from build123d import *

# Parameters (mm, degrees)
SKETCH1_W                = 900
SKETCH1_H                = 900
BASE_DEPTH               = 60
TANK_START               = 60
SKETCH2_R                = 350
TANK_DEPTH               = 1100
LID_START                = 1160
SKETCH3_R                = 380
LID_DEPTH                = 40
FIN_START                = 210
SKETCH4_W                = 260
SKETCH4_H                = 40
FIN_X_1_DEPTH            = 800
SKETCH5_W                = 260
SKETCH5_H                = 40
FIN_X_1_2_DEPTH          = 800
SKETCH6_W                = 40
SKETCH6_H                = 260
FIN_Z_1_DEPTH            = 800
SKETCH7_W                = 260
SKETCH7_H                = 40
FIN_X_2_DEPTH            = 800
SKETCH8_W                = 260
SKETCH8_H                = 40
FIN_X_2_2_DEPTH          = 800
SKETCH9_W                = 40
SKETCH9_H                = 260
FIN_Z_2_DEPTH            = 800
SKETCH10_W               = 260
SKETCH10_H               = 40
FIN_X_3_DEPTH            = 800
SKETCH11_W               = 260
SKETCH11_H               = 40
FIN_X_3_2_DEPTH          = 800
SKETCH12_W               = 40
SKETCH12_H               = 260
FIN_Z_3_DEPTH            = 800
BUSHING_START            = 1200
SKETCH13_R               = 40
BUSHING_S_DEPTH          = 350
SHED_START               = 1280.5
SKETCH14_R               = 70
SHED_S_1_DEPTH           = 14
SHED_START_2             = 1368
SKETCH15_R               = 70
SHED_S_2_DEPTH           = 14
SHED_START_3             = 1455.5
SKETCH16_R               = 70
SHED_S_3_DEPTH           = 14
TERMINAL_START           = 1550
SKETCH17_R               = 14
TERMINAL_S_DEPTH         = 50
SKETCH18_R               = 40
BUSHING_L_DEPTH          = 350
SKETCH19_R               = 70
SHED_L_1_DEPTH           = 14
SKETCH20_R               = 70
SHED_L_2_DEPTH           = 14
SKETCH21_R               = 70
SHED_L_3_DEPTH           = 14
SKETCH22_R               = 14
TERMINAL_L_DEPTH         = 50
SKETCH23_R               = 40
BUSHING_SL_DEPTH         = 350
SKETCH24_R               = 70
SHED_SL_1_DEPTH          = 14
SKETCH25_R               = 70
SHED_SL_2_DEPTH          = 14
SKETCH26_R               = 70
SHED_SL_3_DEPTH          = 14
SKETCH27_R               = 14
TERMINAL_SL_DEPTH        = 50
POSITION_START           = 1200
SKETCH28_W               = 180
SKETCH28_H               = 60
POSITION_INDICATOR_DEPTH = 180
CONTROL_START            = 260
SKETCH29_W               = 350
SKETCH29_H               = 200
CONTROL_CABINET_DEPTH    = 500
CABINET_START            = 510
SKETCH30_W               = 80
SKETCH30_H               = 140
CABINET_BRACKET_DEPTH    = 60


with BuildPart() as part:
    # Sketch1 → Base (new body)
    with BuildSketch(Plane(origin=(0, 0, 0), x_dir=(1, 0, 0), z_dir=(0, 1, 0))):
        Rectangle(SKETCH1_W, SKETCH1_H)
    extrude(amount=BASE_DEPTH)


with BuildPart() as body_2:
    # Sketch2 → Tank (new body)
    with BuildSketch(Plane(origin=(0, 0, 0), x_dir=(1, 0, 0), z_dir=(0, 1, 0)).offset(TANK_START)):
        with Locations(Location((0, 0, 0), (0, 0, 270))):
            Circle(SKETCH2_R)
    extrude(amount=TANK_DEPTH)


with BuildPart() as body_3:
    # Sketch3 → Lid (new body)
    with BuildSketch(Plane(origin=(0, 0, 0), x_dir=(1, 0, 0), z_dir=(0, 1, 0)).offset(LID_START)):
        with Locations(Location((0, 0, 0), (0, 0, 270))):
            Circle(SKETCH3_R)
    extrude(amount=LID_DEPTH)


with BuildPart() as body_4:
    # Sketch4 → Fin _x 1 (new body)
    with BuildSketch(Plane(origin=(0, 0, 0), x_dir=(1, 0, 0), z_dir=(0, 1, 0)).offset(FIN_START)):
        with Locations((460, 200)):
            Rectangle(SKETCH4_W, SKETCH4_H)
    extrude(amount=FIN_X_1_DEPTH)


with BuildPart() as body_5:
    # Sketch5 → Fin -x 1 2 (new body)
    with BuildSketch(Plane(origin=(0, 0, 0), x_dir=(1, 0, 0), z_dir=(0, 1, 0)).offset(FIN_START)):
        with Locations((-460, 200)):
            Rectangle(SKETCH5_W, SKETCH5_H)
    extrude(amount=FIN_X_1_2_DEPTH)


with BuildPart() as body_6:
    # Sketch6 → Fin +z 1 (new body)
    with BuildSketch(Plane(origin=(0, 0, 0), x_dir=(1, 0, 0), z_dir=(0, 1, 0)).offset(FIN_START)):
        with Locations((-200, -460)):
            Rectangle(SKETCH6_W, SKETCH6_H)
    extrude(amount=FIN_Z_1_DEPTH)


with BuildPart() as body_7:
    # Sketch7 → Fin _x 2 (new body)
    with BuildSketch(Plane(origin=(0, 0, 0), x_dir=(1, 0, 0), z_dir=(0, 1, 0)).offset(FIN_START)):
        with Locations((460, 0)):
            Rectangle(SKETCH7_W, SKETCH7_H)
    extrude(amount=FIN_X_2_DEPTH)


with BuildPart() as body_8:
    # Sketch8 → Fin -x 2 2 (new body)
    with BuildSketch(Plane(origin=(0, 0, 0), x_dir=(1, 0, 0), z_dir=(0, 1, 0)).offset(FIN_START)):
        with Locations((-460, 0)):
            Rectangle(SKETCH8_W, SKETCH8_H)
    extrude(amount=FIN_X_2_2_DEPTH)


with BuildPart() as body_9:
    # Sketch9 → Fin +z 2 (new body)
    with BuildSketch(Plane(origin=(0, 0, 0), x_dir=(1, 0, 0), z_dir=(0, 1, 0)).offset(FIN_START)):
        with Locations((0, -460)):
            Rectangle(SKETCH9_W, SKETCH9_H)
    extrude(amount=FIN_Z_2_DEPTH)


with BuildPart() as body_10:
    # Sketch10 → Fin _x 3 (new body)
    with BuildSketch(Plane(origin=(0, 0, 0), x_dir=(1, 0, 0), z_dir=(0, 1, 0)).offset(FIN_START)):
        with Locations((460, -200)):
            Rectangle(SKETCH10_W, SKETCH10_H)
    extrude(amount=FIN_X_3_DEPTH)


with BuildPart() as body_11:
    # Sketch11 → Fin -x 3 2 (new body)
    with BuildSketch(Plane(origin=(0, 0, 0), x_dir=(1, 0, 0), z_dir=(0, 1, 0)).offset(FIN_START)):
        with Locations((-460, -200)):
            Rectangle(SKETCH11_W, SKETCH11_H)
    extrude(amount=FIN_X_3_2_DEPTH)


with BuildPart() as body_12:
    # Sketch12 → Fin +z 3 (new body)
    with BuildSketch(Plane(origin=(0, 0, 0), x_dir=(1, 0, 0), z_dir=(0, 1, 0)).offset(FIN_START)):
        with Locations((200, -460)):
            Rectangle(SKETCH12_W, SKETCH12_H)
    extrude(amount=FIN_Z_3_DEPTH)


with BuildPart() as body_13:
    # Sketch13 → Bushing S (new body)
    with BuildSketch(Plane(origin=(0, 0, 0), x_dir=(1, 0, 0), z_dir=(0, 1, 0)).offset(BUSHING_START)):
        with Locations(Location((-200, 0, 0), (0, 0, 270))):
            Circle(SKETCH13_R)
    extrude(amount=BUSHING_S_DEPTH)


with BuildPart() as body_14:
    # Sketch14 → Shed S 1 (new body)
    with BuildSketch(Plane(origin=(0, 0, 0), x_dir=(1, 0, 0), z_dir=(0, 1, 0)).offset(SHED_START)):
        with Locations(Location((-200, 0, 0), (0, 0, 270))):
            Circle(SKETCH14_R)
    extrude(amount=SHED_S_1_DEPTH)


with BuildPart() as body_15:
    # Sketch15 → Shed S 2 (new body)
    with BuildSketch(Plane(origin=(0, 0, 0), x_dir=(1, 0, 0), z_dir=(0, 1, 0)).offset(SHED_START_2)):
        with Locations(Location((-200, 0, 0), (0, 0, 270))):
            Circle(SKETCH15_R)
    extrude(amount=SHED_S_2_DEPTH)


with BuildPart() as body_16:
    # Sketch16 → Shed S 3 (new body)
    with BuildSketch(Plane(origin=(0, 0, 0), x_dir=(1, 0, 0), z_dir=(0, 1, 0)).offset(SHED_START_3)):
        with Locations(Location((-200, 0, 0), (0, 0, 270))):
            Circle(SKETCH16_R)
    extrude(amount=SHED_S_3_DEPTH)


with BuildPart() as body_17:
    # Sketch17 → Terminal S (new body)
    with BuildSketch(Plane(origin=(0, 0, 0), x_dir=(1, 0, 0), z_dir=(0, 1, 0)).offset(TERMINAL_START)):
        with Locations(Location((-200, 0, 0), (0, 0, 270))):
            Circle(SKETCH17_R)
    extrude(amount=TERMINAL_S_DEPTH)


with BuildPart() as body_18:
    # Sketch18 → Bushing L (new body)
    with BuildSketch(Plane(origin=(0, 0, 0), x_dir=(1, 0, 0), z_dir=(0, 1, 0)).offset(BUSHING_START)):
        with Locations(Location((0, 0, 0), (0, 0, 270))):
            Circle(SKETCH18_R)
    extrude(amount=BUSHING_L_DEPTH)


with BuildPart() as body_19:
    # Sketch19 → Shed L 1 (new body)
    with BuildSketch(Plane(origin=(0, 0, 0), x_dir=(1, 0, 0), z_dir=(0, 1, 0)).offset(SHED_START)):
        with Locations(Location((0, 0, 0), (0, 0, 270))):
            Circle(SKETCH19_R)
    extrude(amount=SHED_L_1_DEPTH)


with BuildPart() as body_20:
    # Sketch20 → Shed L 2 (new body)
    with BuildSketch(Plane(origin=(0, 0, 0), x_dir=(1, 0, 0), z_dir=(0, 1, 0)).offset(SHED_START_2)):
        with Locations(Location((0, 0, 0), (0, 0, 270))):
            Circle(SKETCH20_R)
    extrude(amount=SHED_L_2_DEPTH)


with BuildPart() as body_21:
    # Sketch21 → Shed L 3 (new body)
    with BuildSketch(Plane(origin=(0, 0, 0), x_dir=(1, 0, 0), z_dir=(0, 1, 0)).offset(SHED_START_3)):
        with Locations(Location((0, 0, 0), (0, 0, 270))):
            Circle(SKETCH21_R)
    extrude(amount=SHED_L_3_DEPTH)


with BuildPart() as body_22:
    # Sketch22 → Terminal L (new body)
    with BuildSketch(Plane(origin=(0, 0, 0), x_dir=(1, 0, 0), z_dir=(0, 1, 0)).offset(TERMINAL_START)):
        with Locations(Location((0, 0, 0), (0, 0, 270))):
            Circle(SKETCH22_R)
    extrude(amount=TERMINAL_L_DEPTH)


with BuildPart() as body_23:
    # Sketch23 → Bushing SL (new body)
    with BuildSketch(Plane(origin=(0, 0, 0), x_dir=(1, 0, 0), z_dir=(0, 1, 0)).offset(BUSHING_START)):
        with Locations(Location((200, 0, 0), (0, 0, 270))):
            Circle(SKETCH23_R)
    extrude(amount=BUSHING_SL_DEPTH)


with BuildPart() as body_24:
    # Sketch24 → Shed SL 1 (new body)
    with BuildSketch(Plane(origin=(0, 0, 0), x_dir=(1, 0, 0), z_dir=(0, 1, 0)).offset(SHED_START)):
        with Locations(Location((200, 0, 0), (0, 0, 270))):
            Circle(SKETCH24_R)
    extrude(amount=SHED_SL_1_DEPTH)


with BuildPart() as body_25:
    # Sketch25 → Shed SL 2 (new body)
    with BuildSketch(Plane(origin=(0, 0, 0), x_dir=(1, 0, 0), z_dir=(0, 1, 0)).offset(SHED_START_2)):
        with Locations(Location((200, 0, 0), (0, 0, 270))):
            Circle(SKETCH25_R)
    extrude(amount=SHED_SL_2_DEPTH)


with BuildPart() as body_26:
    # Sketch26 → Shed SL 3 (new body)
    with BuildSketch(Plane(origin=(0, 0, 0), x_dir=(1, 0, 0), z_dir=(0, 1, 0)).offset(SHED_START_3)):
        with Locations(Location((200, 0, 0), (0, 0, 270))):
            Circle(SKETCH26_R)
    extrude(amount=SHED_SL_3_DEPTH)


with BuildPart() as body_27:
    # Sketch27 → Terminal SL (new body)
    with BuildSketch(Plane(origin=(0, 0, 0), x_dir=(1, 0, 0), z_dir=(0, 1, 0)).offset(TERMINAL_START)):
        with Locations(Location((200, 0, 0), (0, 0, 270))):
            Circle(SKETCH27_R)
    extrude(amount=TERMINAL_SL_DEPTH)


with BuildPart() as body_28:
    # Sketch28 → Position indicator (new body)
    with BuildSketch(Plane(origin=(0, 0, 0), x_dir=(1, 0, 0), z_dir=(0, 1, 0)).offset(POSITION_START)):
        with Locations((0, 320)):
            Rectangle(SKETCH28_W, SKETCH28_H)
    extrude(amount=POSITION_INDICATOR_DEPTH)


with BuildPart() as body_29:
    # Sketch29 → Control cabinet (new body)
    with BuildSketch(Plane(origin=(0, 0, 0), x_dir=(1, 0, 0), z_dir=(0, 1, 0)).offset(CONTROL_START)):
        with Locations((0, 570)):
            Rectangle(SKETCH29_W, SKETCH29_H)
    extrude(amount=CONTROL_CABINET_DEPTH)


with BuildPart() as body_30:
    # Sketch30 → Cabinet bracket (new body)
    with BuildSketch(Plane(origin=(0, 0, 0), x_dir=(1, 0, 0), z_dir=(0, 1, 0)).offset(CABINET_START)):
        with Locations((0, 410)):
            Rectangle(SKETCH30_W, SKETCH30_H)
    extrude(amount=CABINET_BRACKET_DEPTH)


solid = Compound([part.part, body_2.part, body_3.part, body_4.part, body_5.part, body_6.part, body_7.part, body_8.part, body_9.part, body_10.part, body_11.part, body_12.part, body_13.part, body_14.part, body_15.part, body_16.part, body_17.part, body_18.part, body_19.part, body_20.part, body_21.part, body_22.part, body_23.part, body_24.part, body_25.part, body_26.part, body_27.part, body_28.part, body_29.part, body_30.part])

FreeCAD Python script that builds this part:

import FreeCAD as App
import Part
import Sketcher

V = App.Vector


def add_polygon(sketch, points):
    """Adds a closed chain of lines whose ends are joined by coincident constraints."""
    first, n = sketch.GeometryCount, len(points)
    for a, b in zip(points, points[1:] + points[:1]):
        sketch.addGeometry(Part.LineSegment(App.Vector(*a, 0), App.Vector(*b, 0)), False)
    for i in range(n):
        sketch.addConstraint(Sketcher.Constraint("Coincident", first + i, 2, first + (i + 1) % n, 1))

doc = App.newDocument("Part")
params = doc.addObject("Spreadsheet::Sheet", "Params")
for row, (alias, value) in enumerate([
    ("sketch1_width", "900 mm"),
    ("pad1_length", "60 mm"),
    ("sketch2_diameter", "700 mm"),
    ("pad2_length", "1100 mm"),
    ("sketch3_diameter", "760 mm"),
    ("pad3_length", "40 mm"),
    ("sketch4_width", "260 mm"),
    ("sketch4_height", "40 mm"),
    ("pad4_length", "800 mm"),
    ("sketch5_width", "260 mm"),
    ("sketch5_height", "40 mm"),
    ("pad5_length", "800 mm"),
    ("sketch6_width", "40 mm"),
    ("sketch6_height", "260 mm"),
    ("pad6_length", "800 mm"),
    ("sketch7_width", "260 mm"),
    ("sketch7_height", "40 mm"),
    ("pad7_length", "800 mm"),
    ("sketch8_width", "260 mm"),
    ("sketch8_height", "40 mm"),
    ("pad8_length", "800 mm"),
    ("sketch9_width", "40 mm"),
    ("sketch9_height", "260 mm"),
    ("pad9_length", "800 mm"),
    ("sketch10_width", "260 mm"),
    ("sketch10_height", "40 mm"),
    ("pad10_length", "800 mm"),
    ("sketch11_width", "260 mm"),
    ("sketch11_height", "40 mm"),
    ("pad11_length", "800 mm"),
    ("sketch12_width", "40 mm"),
    ("sketch12_height", "260 mm"),
    ("pad12_length", "800 mm"),
    ("sketch13_diameter", "80 mm"),
    ("pad13_length", "350 mm"),
    ("sketch14_diameter", "140 mm"),
    ("pad14_length", "14 mm"),
    ("sketch15_diameter", "140 mm"),
    ("pad15_length", "14 mm"),
    ("sketch16_diameter", "140 mm"),
    ("pad16_length", "14 mm"),
    ("sketch17_diameter", "28 mm"),
    ("pad17_length", "50 mm"),
    ("sketch18_diameter", "80 mm"),
    ("pad18_length", "350 mm"),
    ("sketch19_diameter", "140 mm"),
    ("pad19_length", "14 mm"),
    ("sketch20_diameter", "140 mm"),
    ("pad20_length", "14 mm"),
    ("sketch21_diameter", "140 mm"),
    ("pad21_length", "14 mm"),
    ("sketch22_diameter", "28 mm"),
    ("pad22_length", "50 mm"),
    ("sketch23_diameter", "80 mm"),
    ("pad23_length", "350 mm"),
    ("sketch24_diameter", "140 mm"),
    ("pad24_length", "14 mm"),
    ("sketch25_diameter", "140 mm"),
    ("pad25_length", "14 mm"),
    ("sketch26_diameter", "140 mm"),
    ("pad26_length", "14 mm"),
    ("sketch27_diameter", "28 mm"),
    ("pad27_length", "50 mm"),
    ("sketch28_width", "180 mm"),
    ("sketch28_height", "60 mm"),
    ("pad28_length", "180 mm"),
    ("sketch29_width", "350 mm"),
    ("sketch29_height", "200 mm"),
    ("pad29_length", "500 mm"),
    ("sketch30_width", "80 mm"),
    ("sketch30_height", "140 mm"),
    ("pad30_length", "60 mm"),
], start=1):
    params.set(f"A{row}", alias)
    params.set(f"B{row}", "=" + value)
    params.setAlias(f"B{row}", alias)

body = doc.addObject("PartDesign::Body", "Body")

# Sketch on XZ plane
sketch1 = doc.addObject("Sketcher::SketchObject", "Sketch")
body.addObject(sketch1)
sketch1.AttachmentSupport = (doc.XZ_Plane, [""])
sketch1.MapMode = "FlatFace"
add_polygon(sketch1, [(-450, -450), (-450, 450), (450, 450), (450, -450)])  # lines 0-3
sketch1.addConstraint([
    Sketcher.Constraint("Vertical", 0),
    Sketcher.Constraint("Horizontal", 1),
    Sketcher.Constraint("Vertical", 2),
    Sketcher.Constraint("Horizontal", 3),
    Sketcher.Constraint("Symmetric", 0, 2, 2, 2, -1, 1),
    Sketcher.Constraint("Equal", 3, 0),
    Sketcher.Constraint("DistanceX", 1, 1, 1, 2, 900.0),
])
sketch1.setExpression("Constraints[10]", "Params.sketch1_width")
pad1 = doc.addObject("PartDesign::Pad", "Pad")
body.addObject(pad1)
pad1.Profile = sketch1
pad1.setExpression("Length", "Params.pad1_length")
pad1.Reversed = True
body2 = doc.addObject("PartDesign::Body", "Body001")

# Sketch on XZ plane
sketch2 = doc.addObject("Sketcher::SketchObject", "Sketch001")
body2.addObject(sketch2)
sketch2.AttachmentSupport = (doc.getObject("XZ_Plane001"), [""])
sketch2.MapMode = "FlatFace"
sketch2.AttachmentOffset = App.Placement(V(0, 0, -60), App.Rotation())
sketch2.addGeometry(Part.Circle(V(0, 0, 0), V(0, 0, 1), 350), False)
sketch2.addConstraint([
    Sketcher.Constraint("Coincident", 0, 3, -1, 1),
    Sketcher.Constraint("Diameter", 0, 700.0),
])
sketch2.setExpression("Constraints[1]", "Params.sketch2_diameter")
pad2 = doc.addObject("PartDesign::Pad", "Pad001")
body2.addObject(pad2)
pad2.Profile = sketch2
pad2.setExpression("Length", "Params.pad2_length")
pad2.Reversed = True
body3 = doc.addObject("PartDesign::Body", "Body002")

# Sketch on XZ plane
sketch3 = doc.addObject("Sketcher::SketchObject", "Sketch002")
body3.addObject(sketch3)
sketch3.AttachmentSupport = (doc.getObject("XZ_Plane002"), [""])
sketch3.MapMode = "FlatFace"
sketch3.AttachmentOffset = App.Placement(V(0, 0, -1160), App.Rotation())
sketch3.addGeometry(Part.Circle(V(0, 0, 0), V(0, 0, 1), 380), False)
sketch3.addConstraint([
    Sketcher.Constraint("Coincident", 0, 3, -1, 1),
    Sketcher.Constraint("Diameter", 0, 760.0),
])
sketch3.setExpression("Constraints[1]", "Params.sketch3_diameter")
pad3 = doc.addObject("PartDesign::Pad", "Pad002")
body3.addObject(pad3)
pad3.Profile = sketch3
pad3.setExpression("Length", "Params.pad3_length")
pad3.Reversed = True
body4 = doc.addObject("PartDesign::Body", "Body003")

# Sketch on XZ plane
sketch4 = doc.addObject("Sketcher::SketchObject", "Sketch003")
body4.addObject(sketch4)
sketch4.AttachmentSupport = (doc.getObject("XZ_Plane003"), [""])
sketch4.MapMode = "FlatFace"
sketch4.AttachmentOffset = App.Placement(V(0, 0, -210), App.Rotation())
add_polygon(sketch4, [(330, -220), (330, -180), (590, -180), (590, -220)])  # lines 0-3
sketch4.addConstraint([
    Sketcher.Constraint("Vertical", 0),
    Sketcher.Constraint("Horizontal", 1),
    Sketcher.Constraint("Vertical", 2),
    Sketcher.Constraint("Horizontal", 3),
    Sketcher.Constraint("DistanceX", 1, 1, 1, 2, 260.0),
    Sketcher.Constraint("DistanceY", 0, 1, 0, 2, 40.0),
    Sketcher.Constraint("DistanceX", -1, 1, 0, 2, 330.0),
    Sketcher.Constraint("DistanceY", 0, 2, -1, 1, 180.0),
])
sketch4.setExpression("Constraints[8]", "Params.sketch4_width")
sketch4.setExpression("Constraints[9]", "Params.sketch4_height")
pad4 = doc.addObject("PartDesign::Pad", "Pad003")
body4.addObject(pad4)
pad4.Profile = sketch4
pad4.setExpression("Length", "Params.pad4_length")
pad4.Reversed = True
body5 = doc.addObject("PartDesign::Body", "Body004")

# Sketch on XZ plane
sketch5 = doc.addObject("Sketcher::SketchObject", "Sketch004")
body5.addObject(sketch5)
sketch5.AttachmentSupport = (doc.getObject("XZ_Plane004"), [""])
sketch5.MapMode = "FlatFace"
sketch5.AttachmentOffset = App.Placement(V(0, 0, -210), App.Rotation())
add_polygon(sketch5, [(-590, -220), (-590, -180), (-330, -180), (-330, -220)])  # lines 0-3
sketch5.addConstraint([
    Sketcher.Constraint("Vertical", 0),
    Sketcher.Constraint("Horizontal", 1),
    Sketcher.Constraint("Vertical", 2),
    Sketcher.Constraint("Horizontal", 3),
    Sketcher.Constraint("DistanceX", 1, 1, 1, 2, 260.0),
    Sketcher.Constraint("DistanceY", 0, 1, 0, 2, 40.0),
    Sketcher.Constraint("DistanceX", 0, 2, -1, 1, 590.0),
    Sketcher.Constraint("DistanceY", 0, 2, -1, 1, 180.0),
])
sketch5.setExpression("Constraints[8]", "Params.sketch5_width")
sketch5.setExpression("Constraints[9]", "Params.sketch5_height")
pad5 = doc.addObject("PartDesign::Pad", "Pad004")
body5.addObject(pad5)
pad5.Profile = sketch5
pad5.setExpression("Length", "Params.pad5_length")
pad5.Reversed = True
body6 = doc.addObject("PartDesign::Body", "Body005")

# Sketch on XZ plane
sketch6 = doc.addObject("Sketcher::SketchObject", "Sketch005")
body6.addObject(sketch6)
sketch6.AttachmentSupport = (doc.getObject("XZ_Plane005"), [""])
sketch6.MapMode = "FlatFace"
sketch6.AttachmentOffset = App.Placement(V(0, 0, -210), App.Rotation())
add_polygon(sketch6, [(-220, 330), (-220, 590), (-180, 590), (-180, 330)])  # lines 0-3
sketch6.addConstraint([
    Sketcher.Constraint("Vertical", 0),
    Sketcher.Constraint("Horizontal", 1),
    Sketcher.Constraint("Vertical", 2),
    Sketcher.Constraint("Horizontal", 3),
    Sketcher.Constraint("DistanceX", 1, 1, 1, 2, 40.0),
    Sketcher.Constraint("DistanceY", 0, 1, 0, 2, 260.0),
    Sketcher.Constraint("DistanceX", 0, 2, -1, 1, 220.0),
    Sketcher.Constraint("DistanceY", -1, 1, 0, 2, 590.0),
])
sketch6.setExpression("Constraints[8]", "Params.sketch6_width")
sketch6.setExpression("Constraints[9]", "Params.sketch6_height")
pad6 = doc.addObject("PartDesign::Pad", "Pad005")
body6.addObject(pad6)
pad6.Profile = sketch6
pad6.setExpression("Length", "Params.pad6_length")
pad6.Reversed = True
body7 = doc.addObject("PartDesign::Body", "Body006")

# Sketch on XZ plane
sketch7 = doc.addObject("Sketcher::SketchObject", "Sketch006")
body7.addObject(sketch7)
sketch7.AttachmentSupport = (doc.getObject("XZ_Plane006"), [""])
sketch7.MapMode = "FlatFace"
sketch7.AttachmentOffset = App.Placement(V(0, 0, -210), App.Rotation())
add_polygon(sketch7, [(330, -20), (330, 20), (590, 20), (590, -20)])  # lines 0-3
sketch7.addConstraint([
    Sketcher.Constraint("Vertical", 0),
    Sketcher.Constraint("Horizontal", 1),
    Sketcher.Constraint("Vertical", 2),
    Sketcher.Constraint("Horizontal", 3),
    Sketcher.Constraint("DistanceX", 1, 1, 1, 2, 260.0),
    Sketcher.Constraint("DistanceY", 0, 1, 0, 2, 40.0),
    Sketcher.Constraint("DistanceX", -1, 1, 0, 2, 330.0),
    Sketcher.Constraint("DistanceY", -1, 1, 0, 2, 20.0),
])
sketch7.setExpression("Constraints[8]", "Params.sketch7_width")
sketch7.setExpression("Constraints[9]", "Params.sketch7_height")
pad7 = doc.addObject("PartDesign::Pad", "Pad006")
body7.addObject(pad7)
pad7.Profile = sketch7
pad7.setExpression("Length", "Params.pad7_length")
pad7.Reversed = True
body8 = doc.addObject("PartDesign::Body", "Body007")

# Sketch on XZ plane
sketch8 = doc.addObject("Sketcher::SketchObject", "Sketch007")
body8.addObject(sketch8)
sketch8.AttachmentSupport = (doc.getObject("XZ_Plane007"), [""])
sketch8.MapMode = "FlatFace"
sketch8.AttachmentOffset = App.Placement(V(0, 0, -210), App.Rotation())
add_polygon(sketch8, [(-590, -20), (-590, 20), (-330, 20), (-330, -20)])  # lines 0-3
sketch8.addConstraint([
    Sketcher.Constraint("Vertical", 0),
    Sketcher.Constraint("Horizontal", 1),
    Sketcher.Constraint("Vertical", 2),
    Sketcher.Constraint("Horizontal", 3),
    Sketcher.Constraint("DistanceX", 1, 1, 1, 2, 260.0),
    Sketcher.Constraint("DistanceY", 0, 1, 0, 2, 40.0),
    Sketcher.Constraint("DistanceX", 0, 2, -1, 1, 590.0),
    Sketcher.Constraint("DistanceY", -1, 1, 0, 2, 20.0),
])
sketch8.setExpression("Constraints[8]", "Params.sketch8_width")
sketch8.setExpression("Constraints[9]", "Params.sketch8_height")
pad8 = doc.addObject("PartDesign::Pad", "Pad007")
body8.addObject(pad8)
pad8.Profile = sketch8
pad8.setExpression("Length", "Params.pad8_length")
pad8.Reversed = True
body9 = doc.addObject("PartDesign::Body", "Body008")

# Sketch on XZ plane
sketch9 = doc.addObject("Sketcher::SketchObject", "Sketch008")
body9.addObject(sketch9)
sketch9.AttachmentSupport = (doc.getObject("XZ_Plane008"), [""])
sketch9.MapMode = "FlatFace"
sketch9.AttachmentOffset = App.Placement(V(0, 0, -210), App.Rotation())
add_polygon(sketch9, [(-20, 330), (-20, 590), (20, 590), (20, 330)])  # lines 0-3
sketch9.addConstraint([
    Sketcher.Constraint("Vertical", 0),
    Sketcher.Constraint("Horizontal", 1),
    Sketcher.Constraint("Vertical", 2),
    Sketcher.Constraint("Horizontal", 3),
    Sketcher.Constraint("DistanceX", 1, 1, 1, 2, 40.0),
    Sketcher.Constraint("DistanceY", 0, 1, 0, 2, 260.0),
    Sketcher.Constraint("DistanceX", 0, 2, -1, 1, 20.0),
    Sketcher.Constraint("DistanceY", -1, 1, 0, 2, 590.0),
])
sketch9.setExpression("Constraints[8]", "Params.sketch9_width")
sketch9.setExpression("Constraints[9]", "Params.sketch9_height")
pad9 = doc.addObject("PartDesign::Pad", "Pad008")
body9.addObject(pad9)
pad9.Profile = sketch9
pad9.setExpression("Length", "Params.pad9_length")
pad9.Reversed = True
body10 = doc.addObject("PartDesign::Body", "Body009")

# Sketch on XZ plane
sketch10 = doc.addObject("Sketcher::SketchObject", "Sketch009")
body10.addObject(sketch10)
sketch10.AttachmentSupport = (doc.getObject("XZ_Plane009"), [""])
sketch10.MapMode = "FlatFace"
sketch10.AttachmentOffset = App.Placement(V(0, 0, -210), App.Rotation())
add_polygon(sketch10, [(330, 180), (330, 220), (590, 220), (590, 180)])  # lines 0-3
sketch10.addConstraint([
    Sketcher.Constraint("Vertical", 0),
    Sketcher.Constraint("Horizontal", 1),
    Sketcher.Constraint("Vertical", 2),
    Sketcher.Constraint("Horizontal", 3),
    Sketcher.Constraint("DistanceX", 1, 1, 1, 2, 260.0),
    Sketcher.Constraint("DistanceY", 0, 1, 0, 2, 40.0),
    Sketcher.Constraint("DistanceX", -1, 1, 0, 2, 330.0),
    Sketcher.Constraint("DistanceY", -1, 1, 0, 2, 220.0),
])
sketch10.setExpression("Constraints[8]", "Params.sketch10_width")
sketch10.setExpression("Constraints[9]", "Params.sketch10_height")
pad10 = doc.addObject("PartDesign::Pad", "Pad009")
body10.addObject(pad10)
pad10.Profile = sketch10
pad10.setExpression("Length", "Params.pad10_length")
pad10.Reversed = True
body11 = doc.addObject("PartDesign::Body", "Body010")

# Sketch on XZ plane
sketch11 = doc.addObject("Sketcher::SketchObject", "Sketch010")
body11.addObject(sketch11)
sketch11.AttachmentSupport = (doc.getObject("XZ_Plane010"), [""])
sketch11.MapMode = "FlatFace"
sketch11.AttachmentOffset = App.Placement(V(0, 0, -210), App.Rotation())
add_polygon(sketch11, [(-590, 180), (-590, 220), (-330, 220), (-330, 180)])  # lines 0-3
sketch11.addConstraint([
    Sketcher.Constraint("Vertical", 0),
    Sketcher.Constraint("Horizontal", 1),
    Sketcher.Constraint("Vertical", 2),
    Sketcher.Constraint("Horizontal", 3),
    Sketcher.Constraint("DistanceX", 1, 1, 1, 2, 260.0),
    Sketcher.Constraint("DistanceY", 0, 1, 0, 2, 40.0),
    Sketcher.Constraint("DistanceX", 0, 2, -1, 1, 590.0),
    Sketcher.Constraint("DistanceY", -1, 1, 0, 2, 220.0),
])
sketch11.setExpression("Constraints[8]", "Params.sketch11_width")
sketch11.setExpression("Constraints[9]", "Params.sketch11_height")
pad11 = doc.addObject("PartDesign::Pad", "Pad010")
body11.addObject(pad11)
pad11.Profile = sketch11
pad11.setExpression("Length", "Params.pad11_length")
pad11.Reversed = True
body12 = doc.addObject("PartDesign::Body", "Body011")

# Sketch on XZ plane
sketch12 = doc.addObject("Sketcher::SketchObject", "Sketch011")
body12.addObject(sketch12)
sketch12.AttachmentSupport = (doc.getObject("XZ_Plane011"), [""])
sketch12.MapMode = "FlatFace"
sketch12.AttachmentOffset = App.Placement(V(0, 0, -210), App.Rotation())
add_polygon(sketch12, [(180, 330), (180, 590), (220, 590), (220, 330)])  # lines 0-3
sketch12.addConstraint([
    Sketcher.Constraint("Vertical", 0),
    Sketcher.Constraint("Horizontal", 1),
    Sketcher.Constraint("Vertical", 2),
    Sketcher.Constraint("Horizontal", 3),
    Sketcher.Constraint("DistanceX", 1, 1, 1, 2, 40.0),
    Sketcher.Constraint("DistanceY", 0, 1, 0, 2, 260.0),
    Sketcher.Constraint("DistanceX", -1, 1, 0, 2, 180.0),
    Sketcher.Constraint("DistanceY", -1, 1, 0, 2, 590.0),
])
sketch12.setExpression("Constraints[8]", "Params.sketch12_width")
sketch12.setExpression("Constraints[9]", "Params.sketch12_height")
pad12 = doc.addObject("PartDesign::Pad", "Pad011")
body12.addObject(pad12)
pad12.Profile = sketch12
pad12.setExpression("Length", "Params.pad12_length")
pad12.Reversed = True
body13 = doc.addObject("PartDesign::Body", "Body012")

# Sketch on XZ plane
sketch13 = doc.addObject("Sketcher::SketchObject", "Sketch012")
body13.addObject(sketch13)
sketch13.AttachmentSupport = (doc.getObject("XZ_Plane012"), [""])
sketch13.MapMode = "FlatFace"
sketch13.AttachmentOffset = App.Placement(V(0, 0, -1200), App.Rotation())
sketch13.addGeometry(Part.Circle(V(-200, 0, 0), V(0, 0, 1), 40), False)
sketch13.addConstraint([
    Sketcher.Constraint("PointOnObject", 0, 3, -1),
    Sketcher.Constraint("Diameter", 0, 80.0),
    Sketcher.Constraint("DistanceX", 0, 3, -1, 1, 200.0),
])
sketch13.setExpression("Constraints[1]", "Params.sketch13_diameter")
pad13 = doc.addObject("PartDesign::Pad", "Pad012")
body13.addObject(pad13)
pad13.Profile = sketch13
pad13.setExpression("Length", "Params.pad13_length")
pad13.Reversed = True
body14 = doc.addObject("PartDesign::Body", "Body013")

# Sketch on XZ plane
sketch14 = doc.addObject("Sketcher::SketchObject", "Sketch013")
body14.addObject(sketch14)
sketch14.AttachmentSupport = (doc.getObject("XZ_Plane013"), [""])
sketch14.MapMode = "FlatFace"
sketch14.AttachmentOffset = App.Placement(V(0, 0, -1280.5), App.Rotation())
sketch14.addGeometry(Part.Circle(V(-200, 0, 0), V(0, 0, 1), 70), False)
sketch14.addConstraint([
    Sketcher.Constraint("PointOnObject", 0, 3, -1),
    Sketcher.Constraint("Diameter", 0, 140.0),
    Sketcher.Constraint("DistanceX", 0, 3, -1, 1, 200.0),
])
sketch14.setExpression("Constraints[1]", "Params.sketch14_diameter")
pad14 = doc.addObject("PartDesign::Pad", "Pad013")
body14.addObject(pad14)
pad14.Profile = sketch14
pad14.setExpression("Length", "Params.pad14_length")
pad14.Reversed = True
body15 = doc.addObject("PartDesign::Body", "Body014")

# Sketch on XZ plane
sketch15 = doc.addObject("Sketcher::SketchObject", "Sketch014")
body15.addObject(sketch15)
sketch15.AttachmentSupport = (doc.getObject("XZ_Plane014"), [""])
sketch15.MapMode = "FlatFace"
sketch15.AttachmentOffset = App.Placement(V(0, 0, -1368), App.Rotation())
sketch15.addGeometry(Part.Circle(V(-200, 0, 0), V(0, 0, 1), 70), False)
sketch15.addConstraint([
    Sketcher.Constraint("PointOnObject", 0, 3, -1),
    Sketcher.Constraint("Diameter", 0, 140.0),
    Sketcher.Constraint("DistanceX", 0, 3, -1, 1, 200.0),
])
sketch15.setExpression("Constraints[1]", "Params.sketch15_diameter")
pad15 = doc.addObject("PartDesign::Pad", "Pad014")
body15.addObject(pad15)
pad15.Profile = sketch15
pad15.setExpression("Length", "Params.pad15_length")
pad15.Reversed = True
body16 = doc.addObject("PartDesign::Body", "Body015")

# Sketch on XZ plane
sketch16 = doc.addObject("Sketcher::SketchObject", "Sketch015")
body16.addObject(sketch16)
sketch16.AttachmentSupport = (doc.getObject("XZ_Plane015"), [""])
sketch16.MapMode = "FlatFace"
sketch16.AttachmentOffset = App.Placement(V(0, 0, -1455.5), App.Rotation())
sketch16.addGeometry(Part.Circle(V(-200, 0, 0), V(0, 0, 1), 70), False)
sketch16.addConstraint([
    Sketcher.Constraint("PointOnObject", 0, 3, -1),
    Sketcher.Constraint("Diameter", 0, 140.0),
    Sketcher.Constraint("DistanceX", 0, 3, -1, 1, 200.0),
])
sketch16.setExpression("Constraints[1]", "Params.sketch16_diameter")
pad16 = doc.addObject("PartDesign::Pad", "Pad015")
body16.addObject(pad16)
pad16.Profile = sketch16
pad16.setExpression("Length", "Params.pad16_length")
pad16.Reversed = True
body17 = doc.addObject("PartDesign::Body", "Body016")

# Sketch on XZ plane
sketch17 = doc.addObject("Sketcher::SketchObject", "Sketch016")
body17.addObject(sketch17)
sketch17.AttachmentSupport = (doc.getObject("XZ_Plane016"), [""])
sketch17.MapMode = "FlatFace"
sketch17.AttachmentOffset = App.Placement(V(0, 0, -1550), App.Rotation())
sketch17.addGeometry(Part.Circle(V(-200, 0, 0), V(0, 0, 1), 14), False)
sketch17.addConstraint([
    Sketcher.Constraint("PointOnObject", 0, 3, -1),
    Sketcher.Constraint("Diameter", 0, 28.0),
    Sketcher.Constraint("DistanceX", 0, 3, -1, 1, 200.0),
])
sketch17.setExpression("Constraints[1]", "Params.sketch17_diameter")
pad17 = doc.addObject("PartDesign::Pad", "Pad016")
body17.addObject(pad17)
pad17.Profile = sketch17
pad17.setExpression("Length", "Params.pad17_length")
pad17.Reversed = True
body18 = doc.addObject("PartDesign::Body", "Body017")

# Sketch on XZ plane
sketch18 = doc.addObject("Sketcher::SketchObject", "Sketch017")
body18.addObject(sketch18)
sketch18.AttachmentSupport = (doc.getObject("XZ_Plane017"), [""])
sketch18.MapMode = "FlatFace"
sketch18.AttachmentOffset = App.Placement(V(0, 0, -1200), App.Rotation())
sketch18.addGeometry(Part.Circle(V(0, 0, 0), V(0, 0, 1), 40), False)
sketch18.addConstraint([
    Sketcher.Constraint("Coincident", 0, 3, -1, 1),
    Sketcher.Constraint("Diameter", 0, 80.0),
])
sketch18.setExpression("Constraints[1]", "Params.sketch18_diameter")
pad18 = doc.addObject("PartDesign::Pad", "Pad017")
body18.addObject(pad18)
pad18.Profile = sketch18
pad18.setExpression("Length", "Params.pad18_length")
pad18.Reversed = True
body19 = doc.addObject("PartDesign::Body", "Body018")

# Sketch on XZ plane
sketch19 = doc.addObject("Sketcher::SketchObject", "Sketch018")
body19.addObject(sketch19)
sketch19.AttachmentSupport = (doc.getObject("XZ_Plane018"), [""])
sketch19.MapMode = "FlatFace"
sketch19.AttachmentOffset = App.Placement(V(0, 0, -1280.5), App.Rotation())
sketch19.addGeometry(Part.Circle(V(0, 0, 0), V(0, 0, 1), 70), False)
sketch19.addConstraint([
    Sketcher.Constraint("Coincident", 0, 3, -1, 1),
    Sketcher.Constraint("Diameter", 0, 140.0),
])
sketch19.setExpression("Constraints[1]", "Params.sketch19_diameter")
pad19 = doc.addObject("PartDesign::Pad", "Pad018")
body19.addObject(pad19)
pad19.Profile = sketch19
pad19.setExpression("Length", "Params.pad19_length")
pad19.Reversed = True
body20 = doc.addObject("PartDesign::Body", "Body019")

# Sketch on XZ plane
sketch20 = doc.addObject("Sketcher::SketchObject", "Sketch019")
body20.addObject(sketch20)
sketch20.AttachmentSupport = (doc.getObject("XZ_Plane019"), [""])
sketch20.MapMode = "FlatFace"
sketch20.AttachmentOffset = App.Placement(V(0, 0, -1368), App.Rotation())
sketch20.addGeometry(Part.Circle(V(0, 0, 0), V(0, 0, 1), 70), False)
sketch20.addConstraint([
    Sketcher.Constraint("Coincident", 0, 3, -1, 1),
    Sketcher.Constraint("Diameter", 0, 140.0),
])
sketch20.setExpression("Constraints[1]", "Params.sketch20_diameter")
pad20 = doc.addObject("PartDesign::Pad", "Pad019")
body20.addObject(pad20)
pad20.Profile = sketch20
pad20.setExpression("Length", "Params.pad20_length")
pad20.Reversed = True
body21 = doc.addObject("PartDesign::Body", "Body020")

# Sketch on XZ plane
sketch21 = doc.addObject("Sketcher::SketchObject", "Sketch020")
body21.addObject(sketch21)
sketch21.AttachmentSupport = (doc.getObject("XZ_Plane020"), [""])
sketch21.MapMode = "FlatFace"
sketch21.AttachmentOffset = App.Placement(V(0, 0, -1455.5), App.Rotation())
sketch21.addGeometry(Part.Circle(V(0, 0, 0), V(0, 0, 1), 70), False)
sketch21.addConstraint([
    Sketcher.Constraint("Coincident", 0, 3, -1, 1),
    Sketcher.Constraint("Diameter", 0, 140.0),
])
sketch21.setExpression("Constraints[1]", "Params.sketch21_diameter")
pad21 = doc.addObject("PartDesign::Pad", "Pad020")
body21.addObject(pad21)
pad21.Profile = sketch21
pad21.setExpression("Length", "Params.pad21_length")
pad21.Reversed = True
body22 = doc.addObject("PartDesign::Body", "Body021")

# Sketch on XZ plane
sketch22 = doc.addObject("Sketcher::SketchObject", "Sketch021")
body22.addObject(sketch22)
sketch22.AttachmentSupport = (doc.getObject("XZ_Plane021"), [""])
sketch22.MapMode = "FlatFace"
sketch22.AttachmentOffset = App.Placement(V(0, 0, -1550), App.Rotation())
sketch22.addGeometry(Part.Circle(V(0, 0, 0), V(0, 0, 1), 14), False)
sketch22.addConstraint([
    Sketcher.Constraint("Coincident", 0, 3, -1, 1),
    Sketcher.Constraint("Diameter", 0, 28.0),
])
sketch22.setExpression("Constraints[1]", "Params.sketch22_diameter")
pad22 = doc.addObject("PartDesign::Pad", "Pad021")
body22.addObject(pad22)
pad22.Profile = sketch22
pad22.setExpression("Length", "Params.pad22_length")
pad22.Reversed = True
body23 = doc.addObject("PartDesign::Body", "Body022")

# Sketch on XZ plane
sketch23 = doc.addObject("Sketcher::SketchObject", "Sketch022")
body23.addObject(sketch23)
sketch23.AttachmentSupport = (doc.getObject("XZ_Plane022"), [""])
sketch23.MapMode = "FlatFace"
sketch23.AttachmentOffset = App.Placement(V(0, 0, -1200), App.Rotation())
sketch23.addGeometry(Part.Circle(V(200, 0, 0), V(0, 0, 1), 40), False)
sketch23.addConstraint([
    Sketcher.Constraint("PointOnObject", 0, 3, -1),
    Sketcher.Constraint("Diameter", 0, 80.0),
    Sketcher.Constraint("DistanceX", -1, 1, 0, 3, 200.0),
])
sketch23.setExpression("Constraints[1]", "Params.sketch23_diameter")
pad23 = doc.addObject("PartDesign::Pad", "Pad022")
body23.addObject(pad23)
pad23.Profile = sketch23
pad23.setExpression("Length", "Params.pad23_length")
pad23.Reversed = True
body24 = doc.addObject("PartDesign::Body", "Body023")

# Sketch on XZ plane
sketch24 = doc.addObject("Sketcher::SketchObject", "Sketch023")
body24.addObject(sketch24)
sketch24.AttachmentSupport = (doc.getObject("XZ_Plane023"), [""])
sketch24.MapMode = "FlatFace"
sketch24.AttachmentOffset = App.Placement(V(0, 0, -1280.5), App.Rotation())
sketch24.addGeometry(Part.Circle(V(200, 0, 0), V(0, 0, 1), 70), False)
sketch24.addConstraint([
    Sketcher.Constraint("PointOnObject", 0, 3, -1),
    Sketcher.Constraint("Diameter", 0, 140.0),
    Sketcher.Constraint("DistanceX", -1, 1, 0, 3, 200.0),
])
sketch24.setExpression("Constraints[1]", "Params.sketch24_diameter")
pad24 = doc.addObject("PartDesign::Pad", "Pad023")
body24.addObject(pad24)
pad24.Profile = sketch24
pad24.setExpression("Length", "Params.pad24_length")
pad24.Reversed = True
body25 = doc.addObject("PartDesign::Body", "Body024")

# Sketch on XZ plane
sketch25 = doc.addObject("Sketcher::SketchObject", "Sketch024")
body25.addObject(sketch25)
sketch25.AttachmentSupport = (doc.getObject("XZ_Plane024"), [""])
sketch25.MapMode = "FlatFace"
sketch25.AttachmentOffset = App.Placement(V(0, 0, -1368), App.Rotation())
sketch25.addGeometry(Part.Circle(V(200, 0, 0), V(0, 0, 1), 70), False)
sketch25.addConstraint([
    Sketcher.Constraint("PointOnObject", 0, 3, -1),
    Sketcher.Constraint("Diameter", 0, 140.0),
    Sketcher.Constraint("DistanceX", -1, 1, 0, 3, 200.0),
])
sketch25.setExpression("Constraints[1]", "Params.sketch25_diameter")
pad25 = doc.addObject("PartDesign::Pad", "Pad024")
body25.addObject(pad25)
pad25.Profile = sketch25
pad25.setExpression("Length", "Params.pad25_length")
pad25.Reversed = True
body26 = doc.addObject("PartDesign::Body", "Body025")

# Sketch on XZ plane
sketch26 = doc.addObject("Sketcher::SketchObject", "Sketch025")
body26.addObject(sketch26)
sketch26.AttachmentSupport = (doc.getObject("XZ_Plane025"), [""])
sketch26.MapMode = "FlatFace"
sketch26.AttachmentOffset = App.Placement(V(0, 0, -1455.5), App.Rotation())
sketch26.addGeometry(Part.Circle(V(200, 0, 0), V(0, 0, 1), 70), False)
sketch26.addConstraint([
    Sketcher.Constraint("PointOnObject", 0, 3, -1),
    Sketcher.Constraint("Diameter", 0, 140.0),
    Sketcher.Constraint("DistanceX", -1, 1, 0, 3, 200.0),
])
sketch26.setExpression("Constraints[1]", "Params.sketch26_diameter")
pad26 = doc.addObject("PartDesign::Pad", "Pad025")
body26.addObject(pad26)
pad26.Profile = sketch26
pad26.setExpression("Length", "Params.pad26_length")
pad26.Reversed = True
body27 = doc.addObject("PartDesign::Body", "Body026")

# Sketch on XZ plane
sketch27 = doc.addObject("Sketcher::SketchObject", "Sketch026")
body27.addObject(sketch27)
sketch27.AttachmentSupport = (doc.getObject("XZ_Plane026"), [""])
sketch27.MapMode = "FlatFace"
sketch27.AttachmentOffset = App.Placement(V(0, 0, -1550), App.Rotation())
sketch27.addGeometry(Part.Circle(V(200, 0, 0), V(0, 0, 1), 14), False)
sketch27.addConstraint([
    Sketcher.Constraint("PointOnObject", 0, 3, -1),
    Sketcher.Constraint("Diameter", 0, 28.0),
    Sketcher.Constraint("DistanceX", -1, 1, 0, 3, 200.0),
])
sketch27.setExpression("Constraints[1]", "Params.sketch27_diameter")
pad27 = doc.addObject("PartDesign::Pad", "Pad026")
body27.addObject(pad27)
pad27.Profile = sketch27
pad27.setExpression("Length", "Params.pad27_length")
pad27.Reversed = True
body28 = doc.addObject("PartDesign::Body", "Body027")

# Sketch on XZ plane
sketch28 = doc.addObject("Sketcher::SketchObject", "Sketch027")
body28.addObject(sketch28)
sketch28.AttachmentSupport = (doc.getObject("XZ_Plane027"), [""])
sketch28.MapMode = "FlatFace"
sketch28.AttachmentOffset = App.Placement(V(0, 0, -1200), App.Rotation())
add_polygon(sketch28, [(-90, -350), (-90, -290), (90, -290), (90, -350)])  # lines 0-3
sketch28.addConstraint([
    Sketcher.Constraint("Vertical", 0),
    Sketcher.Constraint("Horizontal", 1),
    Sketcher.Constraint("Vertical", 2),
    Sketcher.Constraint("Horizontal", 3),
    Sketcher.Constraint("DistanceX", 1, 1, 1, 2, 180.0),
    Sketcher.Constraint("DistanceY", 0, 1, 0, 2, 60.0),
    Sketcher.Constraint("DistanceX", 0, 2, -1, 1, 90.0),
    Sketcher.Constraint("DistanceY", 0, 2, -1, 1, 290.0),
])
sketch28.setExpression("Constraints[8]", "Params.sketch28_width")
sketch28.setExpression("Constraints[9]", "Params.sketch28_height")
pad28 = doc.addObject("PartDesign::Pad", "Pad027")
body28.addObject(pad28)
pad28.Profile = sketch28
pad28.setExpression("Length", "Params.pad28_length")
pad28.Reversed = True
body29 = doc.addObject("PartDesign::Body", "Body028")

# Sketch on XZ plane
sketch29 = doc.addObject("Sketcher::SketchObject", "Sketch028")
body29.addObject(sketch29)
sketch29.AttachmentSupport = (doc.getObject("XZ_Plane028"), [""])
sketch29.MapMode = "FlatFace"
sketch29.AttachmentOffset = App.Placement(V(0, 0, -260), App.Rotation())
add_polygon(sketch29, [(-175, -670), (-175, -470), (175, -470), (175, -670)])  # lines 0-3
sketch29.addConstraint([
    Sketcher.Constraint("Vertical", 0),
    Sketcher.Constraint("Horizontal", 1),
    Sketcher.Constraint("Vertical", 2),
    Sketcher.Constraint("Horizontal", 3),
    Sketcher.Constraint("DistanceX", 1, 1, 1, 2, 350.0),
    Sketcher.Constraint("DistanceY", 0, 1, 0, 2, 200.0),
    Sketcher.Constraint("DistanceX", 0, 2, -1, 1, 175.0),
    Sketcher.Constraint("DistanceY", 0, 2, -1, 1, 470.0),
])
sketch29.setExpression("Constraints[8]", "Params.sketch29_width")
sketch29.setExpression("Constraints[9]", "Params.sketch29_height")
pad29 = doc.addObject("PartDesign::Pad", "Pad028")
body29.addObject(pad29)
pad29.Profile = sketch29
pad29.setExpression("Length", "Params.pad29_length")
pad29.Reversed = True
body30 = doc.addObject("PartDesign::Body", "Body029")

# Sketch on XZ plane
sketch30 = doc.addObject("Sketcher::SketchObject", "Sketch029")
body30.addObject(sketch30)
sketch30.AttachmentSupport = (doc.getObject("XZ_Plane029"), [""])
sketch30.MapMode = "FlatFace"
sketch30.AttachmentOffset = App.Placement(V(0, 0, -510), App.Rotation())
add_polygon(sketch30, [(-40, -480), (-40, -340), (40, -340), (40, -480)])  # lines 0-3
sketch30.addConstraint([
    Sketcher.Constraint("Vertical", 0),
    Sketcher.Constraint("Horizontal", 1),
    Sketcher.Constraint("Vertical", 2),
    Sketcher.Constraint("Horizontal", 3),
    Sketcher.Constraint("DistanceX", 1, 1, 1, 2, 80.0),
    Sketcher.Constraint("DistanceY", 0, 1, 0, 2, 140.0),
    Sketcher.Constraint("DistanceX", 0, 2, -1, 1, 40.0),
    Sketcher.Constraint("DistanceY", 0, 2, -1, 1, 340.0),
])
sketch30.setExpression("Constraints[8]", "Params.sketch30_width")
sketch30.setExpression("Constraints[9]", "Params.sketch30_height")
pad30 = doc.addObject("PartDesign::Pad", "Pad029")
body30.addObject(pad30)
pad30.Profile = sketch30
pad30.setExpression("Length", "Params.pad30_length")
pad30.Reversed = True

doc.recompute()
